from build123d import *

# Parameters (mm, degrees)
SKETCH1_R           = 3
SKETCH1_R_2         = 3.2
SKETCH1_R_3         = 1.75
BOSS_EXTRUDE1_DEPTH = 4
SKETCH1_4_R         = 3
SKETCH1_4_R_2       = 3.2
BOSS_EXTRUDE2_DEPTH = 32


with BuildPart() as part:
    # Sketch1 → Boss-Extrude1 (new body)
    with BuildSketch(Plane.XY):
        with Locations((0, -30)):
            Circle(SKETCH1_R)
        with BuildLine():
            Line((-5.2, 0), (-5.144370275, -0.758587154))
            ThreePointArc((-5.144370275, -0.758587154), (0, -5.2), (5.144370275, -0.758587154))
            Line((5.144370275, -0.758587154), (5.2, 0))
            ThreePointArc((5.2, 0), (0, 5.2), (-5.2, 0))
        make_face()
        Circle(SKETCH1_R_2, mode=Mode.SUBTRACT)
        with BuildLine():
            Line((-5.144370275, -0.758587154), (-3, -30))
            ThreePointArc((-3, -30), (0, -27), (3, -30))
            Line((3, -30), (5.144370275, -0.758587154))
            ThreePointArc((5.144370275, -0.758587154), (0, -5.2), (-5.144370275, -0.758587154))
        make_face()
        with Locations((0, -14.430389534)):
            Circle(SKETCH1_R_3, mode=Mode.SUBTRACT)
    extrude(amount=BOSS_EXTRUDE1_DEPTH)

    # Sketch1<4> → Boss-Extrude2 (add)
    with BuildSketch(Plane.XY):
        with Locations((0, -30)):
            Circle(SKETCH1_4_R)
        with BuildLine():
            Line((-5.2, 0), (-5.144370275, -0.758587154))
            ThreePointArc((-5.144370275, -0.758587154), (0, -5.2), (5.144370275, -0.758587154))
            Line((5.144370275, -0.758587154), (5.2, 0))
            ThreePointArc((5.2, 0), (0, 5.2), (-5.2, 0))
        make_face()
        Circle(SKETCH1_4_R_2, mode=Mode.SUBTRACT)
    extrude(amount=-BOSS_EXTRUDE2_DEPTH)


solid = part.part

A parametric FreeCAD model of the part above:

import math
import FreeCAD as App
import Part
import Sketcher

V = App.Vector
Q = App.Units.Quantity

doc = App.newDocument("Part")
body = doc.addObject("PartDesign::Body", "Body")

# Sketch on XY plane
sketch1 = doc.addObject("Sketcher::SketchObject", "Sketch")
body.addObject(sketch1)
sketch1.AttachmentSupport = (doc.XY_Plane, [""])
sketch1.MapMode = "FlatFace"
sketch1.addGeometry([
    Part.ArcOfCircle(Part.Circle(V(0, -30, 0), V(0, 0, 1), 3), math.radians(180), math.radians(360)),  # 0
    Part.LineSegment(V(3, -30, 0), V(5.14437, -0.758587, 0)),  # 1
    Part.LineSegment(V(5.14437, -0.758587, 0), V(5.2, 0, 0)),  # 2
    Part.ArcOfCircle(Part.Circle(V(0, 0, 0), V(0, 0, 1), 5.2), math.radians(0), math.radians(180)),  # 3
    Part.LineSegment(V(-5.2, 0, 0), V(-5.14437, -0.758587, 0)),  # 4
    Part.LineSegment(V(-5.14437, -0.758587, 0), V(-3, -30, 0)),  # 5
    Part.Circle(V(0, -14.43039, 0), V(0, 0, 1), 1.75),  # 6
    Part.Circle(V(0, 0, 0), V(0, 0, 1), 3.2),  # 7
], False)
sketch1.addConstraint([
    Sketcher.Constraint("Coincident", 0, 2, 1, 1),
    Sketcher.Constraint("Coincident", 1, 2, 2, 1),
    Sketcher.Constraint("Coincident", 2, 2, 3, 1),
    Sketcher.Constraint("Coincident", 3, 2, 4, 1),
    Sketcher.Constraint("Coincident", 4, 2, 5, 1),
    Sketcher.Constraint("Coincident", 5, 2, 0, 1),
    Sketcher.Constraint("Coincident", 3, 3, -1, 1),
    Sketcher.Constraint("Coincident", 7, 3, -1, 1),
    Sketcher.Constraint("Symmetric", 1, 2, 4, 2, -2),
    Sketcher.Constraint("Symmetric", 0, 2, 5, 2, -2),
    Sketcher.Constraint("PointOnObject", 6, 3, -2),
    Sketcher.Constraint("PointOnObject", 2, 2, -1),
    Sketcher.Constraint("PointOnObject", 3, 2, -1),
    Sketcher.Constraint("Parallel", 1, 2),
    Sketcher.Constraint("Radius", 0, Q("3 mm")),
    Sketcher.Constraint("Diameter", 6, Q("3.5 mm")),
    Sketcher.Constraint("Diameter", 7, Q("6.4 mm")),
    Sketcher.Constraint("Radius", 3, Q("5.2 mm")),
    Sketcher.Constraint("DistanceY", 0, 3, -1, 1, Q("30 mm")),
    Sketcher.Constraint("DistanceY", 0, 2, -1, 1, Q("30 mm")),
    Sketcher.Constraint("DistanceY", 6, 3, -1, 1, Q("14.43039 mm")),
    Sketcher.Constraint("DistanceX", -1, 1, 1, 2, Q("5.14437 mm")),
])
pad1 = doc.addObject("PartDesign::Pad", "Pad")
body.addObject(pad1)
pad1.Profile = sketch1
pad1.Length = 4

# Sketch on XY plane
sketch2 = doc.addObject("Sketcher::SketchObject", "Sketch001")
body.addObject(sketch2)
sketch2.AttachmentSupport = (doc.XY_Plane, [""])
sketch2.MapMode = "FlatFace"
sketch2.addGeometry([
    Part.Circle(V(0, -30, 0), V(0, 0, 1), 3),  # 0
    Part.LineSegment(V(-5.2, 0, 0), V(-5.14437, -0.758587, 0)),  # 1
    Part.ArcOfCircle(Part.Circle(V(0, 0, 0), V(0, 0, 1), 5.2), math.radians(-171.611634), math.radians(-8.388366)),  # 2
    Part.LineSegment(V(5.14437, -0.758587, 0), V(5.2, 0, 0)),  # 3
    Part.ArcOfCircle(Part.Circle(V(0, 0, 0), V(0, 0, 1), 5.2), math.radians(0), math.radians(180)),  # 4
    Part.Circle(V(0, 0, 0), V(0, 0, 1), 3.2),  # 5
], False)
sketch2.addConstraint([
    Sketcher.Constraint("Coincident", 1, 2, 2, 1),
    Sketcher.Constraint("Coincident", 2, 2, 3, 1),
    Sketcher.Constraint("Coincident", 3, 2, 4, 1),
    Sketcher.Constraint("Coincident", 4, 2, 1, 1),
    Sketcher.Constraint("Coincident", 2, 3, -1, 1),
    Sketcher.Constraint("Coincident", 4, 3, -1, 1),
    Sketcher.Constraint("Coincident", 5, 3, -1, 1),
    Sketcher.Constraint("Equal", 2, 4),
    Sketcher.Constraint("PointOnObject", 0, 3, -2),
    Sketcher.Constraint("PointOnObject", 3, 2, -1),
    Sketcher.Constraint("PointOnObject", 4, 2, -1),
    Sketcher.Constraint("Horizontal", 1, 2, 2, 2),
    Sketcher.Constraint("Diameter", 0, Q("6 mm")),
    Sketcher.Constraint("Diameter", 5, Q("6.4 mm")),
    Sketcher.Constraint("Radius", 2, Q("5.2 mm")),
    Sketcher.Constraint("DistanceY", 0, 3, -1, 1, Q("30 mm")),
    Sketcher.Constraint("DistanceX", 1, 2, -1, 1, Q("5.14437 mm")),
])
pad2 = doc.addObject("PartDesign::Pad", "Pad001")
body.addObject(pad2)
pad2.Profile = sketch2
pad2.Length = 32
pad2.Reversed = True

doc.recompute()
